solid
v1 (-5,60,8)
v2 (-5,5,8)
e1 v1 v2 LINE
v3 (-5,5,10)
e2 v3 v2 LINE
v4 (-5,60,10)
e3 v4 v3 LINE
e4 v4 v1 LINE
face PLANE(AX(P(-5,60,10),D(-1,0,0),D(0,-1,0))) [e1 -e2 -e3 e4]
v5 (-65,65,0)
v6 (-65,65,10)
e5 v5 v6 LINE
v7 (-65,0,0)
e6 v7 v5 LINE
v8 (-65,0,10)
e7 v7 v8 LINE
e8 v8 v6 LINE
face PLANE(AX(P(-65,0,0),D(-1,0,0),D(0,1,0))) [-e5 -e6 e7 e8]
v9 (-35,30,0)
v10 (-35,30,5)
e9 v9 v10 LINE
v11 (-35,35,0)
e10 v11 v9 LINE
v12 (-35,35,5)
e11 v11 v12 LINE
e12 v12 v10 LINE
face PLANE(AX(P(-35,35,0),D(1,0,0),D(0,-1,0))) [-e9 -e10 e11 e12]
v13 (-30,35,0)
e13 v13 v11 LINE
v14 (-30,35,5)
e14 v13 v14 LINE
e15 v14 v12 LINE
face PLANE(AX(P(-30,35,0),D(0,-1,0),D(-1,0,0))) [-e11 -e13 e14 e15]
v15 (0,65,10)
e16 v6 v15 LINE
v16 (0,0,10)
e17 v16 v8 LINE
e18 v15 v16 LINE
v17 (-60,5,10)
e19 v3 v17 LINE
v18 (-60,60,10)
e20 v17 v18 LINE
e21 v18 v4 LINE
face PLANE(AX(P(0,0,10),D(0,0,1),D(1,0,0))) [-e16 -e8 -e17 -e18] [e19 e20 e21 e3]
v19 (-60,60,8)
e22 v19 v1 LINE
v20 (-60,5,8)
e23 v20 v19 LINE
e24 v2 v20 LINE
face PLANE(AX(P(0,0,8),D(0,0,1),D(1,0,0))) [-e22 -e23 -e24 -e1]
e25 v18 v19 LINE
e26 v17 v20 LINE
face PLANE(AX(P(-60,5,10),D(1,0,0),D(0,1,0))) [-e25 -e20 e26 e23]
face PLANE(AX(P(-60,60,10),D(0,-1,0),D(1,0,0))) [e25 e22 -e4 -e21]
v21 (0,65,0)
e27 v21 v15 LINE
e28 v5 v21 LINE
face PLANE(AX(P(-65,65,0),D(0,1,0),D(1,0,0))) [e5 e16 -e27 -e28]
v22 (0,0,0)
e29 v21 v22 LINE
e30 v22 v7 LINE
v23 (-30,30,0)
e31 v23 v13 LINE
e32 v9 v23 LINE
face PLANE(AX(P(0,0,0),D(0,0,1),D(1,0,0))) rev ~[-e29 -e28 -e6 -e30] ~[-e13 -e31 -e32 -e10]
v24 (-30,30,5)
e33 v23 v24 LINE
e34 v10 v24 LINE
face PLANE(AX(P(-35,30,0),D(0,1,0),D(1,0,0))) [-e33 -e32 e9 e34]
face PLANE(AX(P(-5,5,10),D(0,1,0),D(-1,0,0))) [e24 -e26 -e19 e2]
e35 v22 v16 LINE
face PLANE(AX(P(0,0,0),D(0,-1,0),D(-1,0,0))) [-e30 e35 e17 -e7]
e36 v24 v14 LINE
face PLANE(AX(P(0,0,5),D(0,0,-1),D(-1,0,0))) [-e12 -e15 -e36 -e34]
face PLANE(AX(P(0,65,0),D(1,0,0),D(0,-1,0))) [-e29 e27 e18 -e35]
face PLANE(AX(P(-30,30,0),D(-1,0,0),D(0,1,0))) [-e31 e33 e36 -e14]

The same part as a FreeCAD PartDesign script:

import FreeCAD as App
import Part
import Sketcher
from FreeCAD import Vector

doc = App.newDocument("Part")
body = doc.addObject("PartDesign::Body", "Body")

sketch1 = body.newObject("Sketcher::SketchObject", "Sketch")
sketch1.AttachmentSupport = (doc.getObject("XY_Plane"), [""])
sketch1.MapMode = "FlatFace"
sketch1.addGeometry([
    Part.LineSegment(Vector(-65, 0, 0), Vector(0, 0, 0)),
    Part.LineSegment(Vector(0, 0, 0), Vector(0, 65, 0)),
    Part.LineSegment(Vector(0, 65, 0), Vector(-65, 65, 0)),
    Part.LineSegment(Vector(-65, 65, 0), Vector(-65, 0, 0)),
], False)
sketch1.addConstraint([
    Sketcher.Constraint("Coincident", 0, 2, 1, 1),
    Sketcher.Constraint("Coincident", 1, 2, 2, 1),
    Sketcher.Constraint("Coincident", 2, 2, 3, 1),
    Sketcher.Constraint("Coincident", 3, 2, 0, 1),
    Sketcher.Constraint("Horizontal", 0),
    Sketcher.Constraint("Vertical", 1),
    Sketcher.Constraint("Horizontal", 2),
    Sketcher.Constraint("Vertical", 3),
    Sketcher.Constraint("Coincident", 0, 2, -1, 1),
    Sketcher.Constraint("Equal", 2, 1),
    Sketcher.Constraint("DistanceX", 0, 1, 0, 2, 65.0),
])
pad1 = body.newObject("PartDesign::Pad", "Pad")
pad1.Profile = sketch1
pad1.Length = 10

sketch2 = body.newObject("Sketcher::SketchObject", "Sketch001")
sketch2.AttachmentSupport = (doc.getObject("XY_Plane"), [""])
sketch2.MapMode = "FlatFace"
sketch2.AttachmentOffset = App.Placement(Vector(0, 0, 10), App.Rotation())
sketch2.addGeometry([
    Part.LineSegment(Vector(-60, 5, 0), Vector(-5, 5, 0)),
    Part.LineSegment(Vector(-5, 5, 0), Vector(-5, 60, 0)),
    Part.LineSegment(Vector(-5, 60, 0), Vector(-60, 60, 0)),
    Part.LineSegment(Vector(-60, 60, 0), Vector(-60, 5, 0)),
], False)
sketch2.addConstraint([
    Sketcher.Constraint("Coincident", 0, 2, 1, 1),
    Sketcher.Constraint("Coincident", 1, 2, 2, 1),
    Sketcher.Constraint("Coincident", 2, 2, 3, 1),
    Sketcher.Constraint("Coincident", 3, 2, 0, 1),
    Sketcher.Constraint("Horizontal", 0),
    Sketcher.Constraint("Vertical", 1),
    Sketcher.Constraint("Horizontal", 2),
    Sketcher.Constraint("Vertical", 3),
    Sketcher.Constraint("Equal", 2, 1),
    Sketcher.Constraint("DistanceX", 0, 1, 0, 2, 55.0),
    Sketcher.Constraint("DistanceX", 0, 2, -1, 1, 5.0),
    Sketcher.Constraint("DistanceY", -1, 1, 0, 2, 5.0),
])
pocket1 = body.newObject("PartDesign::Pocket", "Pocket")
pocket1.Profile = sketch2
pocket1.Length = 2

sketch3 = body.newObject("Sketcher::SketchObject", "Sketch002")
sketch3.AttachmentSupport = (doc.getObject("XY_Plane"), [""])
sketch3.MapMode = "FlatFace"
sketch3.addGeometry([
    Part.LineSegment(Vector(-35, 35, 0), Vector(-30, 35, 0)),
    Part.LineSegment(Vector(-30, 35, 0), Vector(-30, 30, 0)),
    Part.LineSegment(Vector(-30, 30, 0), Vector(-35, 30, 0)),
    Part.LineSegment(Vector(-35, 30, 0), Vector(-35, 35, 0)),
], False)
sketch3.addConstraint([
    Sketcher.Constraint("Coincident", 0, 2, 1, 1),
    Sketcher.Constraint("Coincident", 1, 2, 2, 1),
    Sketcher.Constraint("Coincident", 2, 2, 3, 1),
    Sketcher.Constraint("Coincident", 3, 2, 0, 1),
    Sketcher.Constraint("Horizontal", 0),
    Sketcher.Constraint("Vertical", 1),
    Sketcher.Constraint("Horizontal", 2),
    Sketcher.Constraint("Vertical", 3),
    Sketcher.Constraint("Equal", 2, 1),
    Sketcher.Constraint("DistanceX", 0, 1, 0, 2, 5.0),
    Sketcher.Constraint("DistanceX", 0, 2, -1, 1, 30.0),
    Sketcher.Constraint("DistanceY", -1, 1, 0, 2, 35.0),
])
pocket2 = body.newObject("PartDesign::Pocket", "Pocket001")
pocket2.Profile = sketch3
pocket2.Length = 5
pocket2.Reversed = True

doc.recompute()
